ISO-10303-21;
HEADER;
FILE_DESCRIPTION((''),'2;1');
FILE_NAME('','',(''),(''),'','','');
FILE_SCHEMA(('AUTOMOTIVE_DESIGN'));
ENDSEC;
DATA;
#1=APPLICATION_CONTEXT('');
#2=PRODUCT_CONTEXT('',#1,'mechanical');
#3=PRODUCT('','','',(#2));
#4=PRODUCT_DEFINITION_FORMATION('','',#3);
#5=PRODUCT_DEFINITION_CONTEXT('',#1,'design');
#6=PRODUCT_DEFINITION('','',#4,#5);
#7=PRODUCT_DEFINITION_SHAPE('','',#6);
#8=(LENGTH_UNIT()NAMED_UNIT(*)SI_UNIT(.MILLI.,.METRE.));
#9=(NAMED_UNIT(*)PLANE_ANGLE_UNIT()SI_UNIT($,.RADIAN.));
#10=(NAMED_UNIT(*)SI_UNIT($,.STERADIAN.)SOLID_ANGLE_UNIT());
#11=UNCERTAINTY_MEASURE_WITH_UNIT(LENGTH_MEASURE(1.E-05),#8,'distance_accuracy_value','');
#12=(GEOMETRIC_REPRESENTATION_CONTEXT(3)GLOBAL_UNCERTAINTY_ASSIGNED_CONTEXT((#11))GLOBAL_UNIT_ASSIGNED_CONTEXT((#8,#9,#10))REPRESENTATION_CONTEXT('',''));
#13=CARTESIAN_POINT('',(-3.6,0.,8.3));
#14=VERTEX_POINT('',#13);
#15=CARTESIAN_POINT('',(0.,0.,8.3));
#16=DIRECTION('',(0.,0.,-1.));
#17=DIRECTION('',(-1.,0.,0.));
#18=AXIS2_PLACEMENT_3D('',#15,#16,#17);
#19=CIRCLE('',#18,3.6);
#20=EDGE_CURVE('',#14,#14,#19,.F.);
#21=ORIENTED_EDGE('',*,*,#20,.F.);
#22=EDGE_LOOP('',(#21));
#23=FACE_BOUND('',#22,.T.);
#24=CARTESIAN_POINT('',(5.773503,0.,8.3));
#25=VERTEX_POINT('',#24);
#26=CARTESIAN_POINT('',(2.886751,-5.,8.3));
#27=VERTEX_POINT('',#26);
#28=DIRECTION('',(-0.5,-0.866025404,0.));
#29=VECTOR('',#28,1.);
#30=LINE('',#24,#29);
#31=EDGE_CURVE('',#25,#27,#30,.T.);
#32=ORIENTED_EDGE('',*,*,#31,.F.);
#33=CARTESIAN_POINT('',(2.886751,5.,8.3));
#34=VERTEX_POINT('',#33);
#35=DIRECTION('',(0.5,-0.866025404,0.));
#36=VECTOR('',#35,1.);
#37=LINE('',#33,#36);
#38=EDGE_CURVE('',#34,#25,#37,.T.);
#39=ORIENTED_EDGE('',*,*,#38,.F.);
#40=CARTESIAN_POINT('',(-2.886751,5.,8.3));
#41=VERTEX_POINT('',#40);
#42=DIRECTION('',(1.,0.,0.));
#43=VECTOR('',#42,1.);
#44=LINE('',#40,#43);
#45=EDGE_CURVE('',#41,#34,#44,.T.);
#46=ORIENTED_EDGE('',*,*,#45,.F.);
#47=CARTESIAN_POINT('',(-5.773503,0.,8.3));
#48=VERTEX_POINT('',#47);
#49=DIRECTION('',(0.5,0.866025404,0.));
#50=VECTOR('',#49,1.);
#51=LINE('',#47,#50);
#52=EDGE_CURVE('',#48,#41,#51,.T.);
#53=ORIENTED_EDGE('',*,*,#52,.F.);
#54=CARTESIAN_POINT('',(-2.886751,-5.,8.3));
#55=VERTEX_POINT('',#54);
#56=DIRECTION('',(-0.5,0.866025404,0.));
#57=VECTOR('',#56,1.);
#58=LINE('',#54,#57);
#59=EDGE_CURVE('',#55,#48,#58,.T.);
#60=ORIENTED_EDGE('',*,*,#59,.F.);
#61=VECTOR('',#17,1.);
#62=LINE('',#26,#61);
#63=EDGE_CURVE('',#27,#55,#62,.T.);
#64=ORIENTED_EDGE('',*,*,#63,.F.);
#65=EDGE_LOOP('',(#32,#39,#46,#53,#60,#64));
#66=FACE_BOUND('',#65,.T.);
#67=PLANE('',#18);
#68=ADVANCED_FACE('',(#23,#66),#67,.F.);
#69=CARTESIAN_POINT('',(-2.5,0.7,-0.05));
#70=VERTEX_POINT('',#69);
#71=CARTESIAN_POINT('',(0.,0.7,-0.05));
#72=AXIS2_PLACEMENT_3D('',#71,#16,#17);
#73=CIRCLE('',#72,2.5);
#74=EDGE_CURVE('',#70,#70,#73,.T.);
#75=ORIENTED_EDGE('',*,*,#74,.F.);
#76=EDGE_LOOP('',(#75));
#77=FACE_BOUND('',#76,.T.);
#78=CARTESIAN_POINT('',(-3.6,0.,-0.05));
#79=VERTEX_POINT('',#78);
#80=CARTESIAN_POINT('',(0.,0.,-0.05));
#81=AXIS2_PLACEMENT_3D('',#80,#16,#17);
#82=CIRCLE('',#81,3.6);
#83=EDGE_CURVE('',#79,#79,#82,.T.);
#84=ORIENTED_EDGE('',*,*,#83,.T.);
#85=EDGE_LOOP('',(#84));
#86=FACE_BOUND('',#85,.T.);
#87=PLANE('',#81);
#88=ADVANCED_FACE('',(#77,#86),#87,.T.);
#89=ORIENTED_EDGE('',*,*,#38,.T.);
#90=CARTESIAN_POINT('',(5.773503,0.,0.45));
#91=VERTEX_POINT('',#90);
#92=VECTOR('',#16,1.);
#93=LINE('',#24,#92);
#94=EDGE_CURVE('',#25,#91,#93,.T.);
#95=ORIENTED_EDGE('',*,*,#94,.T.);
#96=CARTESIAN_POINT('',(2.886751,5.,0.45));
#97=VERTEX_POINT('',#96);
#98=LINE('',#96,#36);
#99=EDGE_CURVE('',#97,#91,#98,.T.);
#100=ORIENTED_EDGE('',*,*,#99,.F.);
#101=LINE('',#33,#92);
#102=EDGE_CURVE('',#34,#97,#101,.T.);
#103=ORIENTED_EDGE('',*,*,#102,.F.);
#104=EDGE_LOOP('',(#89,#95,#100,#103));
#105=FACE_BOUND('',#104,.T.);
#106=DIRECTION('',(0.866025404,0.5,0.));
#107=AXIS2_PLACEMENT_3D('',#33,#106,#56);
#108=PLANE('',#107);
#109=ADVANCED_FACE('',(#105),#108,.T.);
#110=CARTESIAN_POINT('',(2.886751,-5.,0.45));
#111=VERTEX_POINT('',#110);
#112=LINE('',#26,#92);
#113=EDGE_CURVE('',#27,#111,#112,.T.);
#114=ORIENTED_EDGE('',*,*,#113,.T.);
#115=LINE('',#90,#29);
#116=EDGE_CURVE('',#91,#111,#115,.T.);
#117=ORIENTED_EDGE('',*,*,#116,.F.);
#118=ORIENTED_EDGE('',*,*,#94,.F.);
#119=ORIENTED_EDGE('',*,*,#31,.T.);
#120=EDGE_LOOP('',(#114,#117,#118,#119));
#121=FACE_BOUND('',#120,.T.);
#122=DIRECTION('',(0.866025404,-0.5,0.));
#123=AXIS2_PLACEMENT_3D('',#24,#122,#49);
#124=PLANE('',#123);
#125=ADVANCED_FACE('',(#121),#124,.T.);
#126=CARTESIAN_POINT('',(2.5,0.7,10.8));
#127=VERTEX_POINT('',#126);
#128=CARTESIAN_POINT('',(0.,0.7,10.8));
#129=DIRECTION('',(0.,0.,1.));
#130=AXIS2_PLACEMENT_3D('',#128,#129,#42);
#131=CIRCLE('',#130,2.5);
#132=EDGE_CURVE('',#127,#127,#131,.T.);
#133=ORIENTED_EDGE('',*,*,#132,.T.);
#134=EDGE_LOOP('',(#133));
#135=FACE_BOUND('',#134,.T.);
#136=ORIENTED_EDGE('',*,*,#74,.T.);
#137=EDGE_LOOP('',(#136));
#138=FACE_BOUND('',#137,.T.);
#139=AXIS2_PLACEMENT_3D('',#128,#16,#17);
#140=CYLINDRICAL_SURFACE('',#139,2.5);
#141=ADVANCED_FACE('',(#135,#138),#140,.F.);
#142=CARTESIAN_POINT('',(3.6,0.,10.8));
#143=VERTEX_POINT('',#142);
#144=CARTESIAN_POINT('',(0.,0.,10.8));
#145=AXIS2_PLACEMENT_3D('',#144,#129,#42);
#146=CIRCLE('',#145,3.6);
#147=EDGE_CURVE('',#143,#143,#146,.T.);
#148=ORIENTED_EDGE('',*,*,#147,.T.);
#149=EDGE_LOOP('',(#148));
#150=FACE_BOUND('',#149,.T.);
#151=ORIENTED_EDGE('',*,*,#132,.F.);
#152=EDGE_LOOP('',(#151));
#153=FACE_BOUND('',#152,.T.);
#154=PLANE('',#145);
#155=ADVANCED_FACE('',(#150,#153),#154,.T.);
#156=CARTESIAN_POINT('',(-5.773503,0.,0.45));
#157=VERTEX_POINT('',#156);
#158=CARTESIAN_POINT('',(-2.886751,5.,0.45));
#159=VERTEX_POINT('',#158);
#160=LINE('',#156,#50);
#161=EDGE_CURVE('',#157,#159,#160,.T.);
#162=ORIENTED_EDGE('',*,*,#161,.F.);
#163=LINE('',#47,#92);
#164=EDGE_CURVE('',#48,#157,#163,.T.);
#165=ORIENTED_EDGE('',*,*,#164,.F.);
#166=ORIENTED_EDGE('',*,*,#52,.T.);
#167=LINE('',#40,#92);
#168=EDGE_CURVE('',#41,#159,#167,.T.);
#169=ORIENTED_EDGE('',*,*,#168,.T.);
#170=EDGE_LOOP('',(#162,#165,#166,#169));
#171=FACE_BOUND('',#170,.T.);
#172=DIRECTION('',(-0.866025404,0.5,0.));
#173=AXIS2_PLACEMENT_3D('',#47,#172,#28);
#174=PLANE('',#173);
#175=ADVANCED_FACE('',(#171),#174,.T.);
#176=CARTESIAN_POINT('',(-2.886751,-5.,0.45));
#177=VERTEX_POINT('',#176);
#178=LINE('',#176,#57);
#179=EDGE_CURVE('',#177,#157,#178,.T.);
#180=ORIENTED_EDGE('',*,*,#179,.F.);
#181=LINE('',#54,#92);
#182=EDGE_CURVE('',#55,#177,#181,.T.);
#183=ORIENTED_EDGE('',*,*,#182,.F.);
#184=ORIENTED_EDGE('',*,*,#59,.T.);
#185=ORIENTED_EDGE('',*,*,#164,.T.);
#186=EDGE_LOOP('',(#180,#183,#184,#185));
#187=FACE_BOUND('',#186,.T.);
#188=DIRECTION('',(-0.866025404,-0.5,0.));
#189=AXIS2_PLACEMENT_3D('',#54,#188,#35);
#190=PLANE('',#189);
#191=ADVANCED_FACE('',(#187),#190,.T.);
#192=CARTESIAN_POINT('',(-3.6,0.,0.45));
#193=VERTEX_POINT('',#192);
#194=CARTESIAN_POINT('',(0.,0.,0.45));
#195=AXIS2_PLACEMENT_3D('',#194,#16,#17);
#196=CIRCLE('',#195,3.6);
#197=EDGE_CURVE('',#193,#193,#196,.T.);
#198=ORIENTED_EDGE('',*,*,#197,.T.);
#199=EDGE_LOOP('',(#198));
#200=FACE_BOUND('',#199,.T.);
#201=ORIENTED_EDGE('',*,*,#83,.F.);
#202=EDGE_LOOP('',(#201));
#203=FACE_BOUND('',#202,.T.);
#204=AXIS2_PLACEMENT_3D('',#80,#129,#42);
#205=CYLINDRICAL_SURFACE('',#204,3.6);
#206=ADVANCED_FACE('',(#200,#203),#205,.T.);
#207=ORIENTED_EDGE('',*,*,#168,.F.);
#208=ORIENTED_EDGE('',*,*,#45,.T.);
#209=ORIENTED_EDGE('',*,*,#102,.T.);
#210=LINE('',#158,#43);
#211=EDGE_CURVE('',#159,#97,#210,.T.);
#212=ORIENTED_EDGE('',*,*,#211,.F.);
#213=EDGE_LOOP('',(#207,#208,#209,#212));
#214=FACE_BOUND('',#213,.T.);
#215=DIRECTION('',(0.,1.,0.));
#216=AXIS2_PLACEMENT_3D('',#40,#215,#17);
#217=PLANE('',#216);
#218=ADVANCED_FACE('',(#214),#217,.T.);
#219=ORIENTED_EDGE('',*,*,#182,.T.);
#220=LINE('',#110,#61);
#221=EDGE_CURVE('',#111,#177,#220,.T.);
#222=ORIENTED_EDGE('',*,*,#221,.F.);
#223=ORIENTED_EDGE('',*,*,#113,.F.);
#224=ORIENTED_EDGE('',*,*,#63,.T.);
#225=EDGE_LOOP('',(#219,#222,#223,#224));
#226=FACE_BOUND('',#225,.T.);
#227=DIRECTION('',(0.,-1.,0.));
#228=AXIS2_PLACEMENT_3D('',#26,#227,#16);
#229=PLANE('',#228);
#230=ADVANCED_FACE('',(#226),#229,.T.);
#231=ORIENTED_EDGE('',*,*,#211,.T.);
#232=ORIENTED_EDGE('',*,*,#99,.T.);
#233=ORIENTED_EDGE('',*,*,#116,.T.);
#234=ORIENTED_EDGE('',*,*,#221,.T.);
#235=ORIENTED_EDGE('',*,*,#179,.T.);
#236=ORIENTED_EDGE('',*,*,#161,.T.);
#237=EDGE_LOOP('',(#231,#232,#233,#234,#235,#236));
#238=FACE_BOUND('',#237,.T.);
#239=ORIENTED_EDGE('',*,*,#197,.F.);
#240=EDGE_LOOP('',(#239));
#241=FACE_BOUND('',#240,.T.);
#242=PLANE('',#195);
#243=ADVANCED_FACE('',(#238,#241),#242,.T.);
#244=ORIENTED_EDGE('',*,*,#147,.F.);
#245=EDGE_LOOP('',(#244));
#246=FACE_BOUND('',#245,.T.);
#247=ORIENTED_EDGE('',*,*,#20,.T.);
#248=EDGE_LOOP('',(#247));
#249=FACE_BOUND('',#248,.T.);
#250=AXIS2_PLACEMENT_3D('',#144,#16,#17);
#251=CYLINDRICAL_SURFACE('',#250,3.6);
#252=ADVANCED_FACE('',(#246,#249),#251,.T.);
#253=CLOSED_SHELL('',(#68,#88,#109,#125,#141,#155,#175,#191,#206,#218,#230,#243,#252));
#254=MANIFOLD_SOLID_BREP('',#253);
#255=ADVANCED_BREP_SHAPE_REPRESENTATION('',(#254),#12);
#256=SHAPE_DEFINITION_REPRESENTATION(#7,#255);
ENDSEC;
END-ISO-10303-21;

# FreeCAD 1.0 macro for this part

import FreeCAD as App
import Part
import Sketcher
Q = App.Units.Quantity

doc = App.newDocument("Part")
body = doc.addObject("PartDesign::Body", "Body")

# Sketch on XY plane
sketch1 = body.newObject("Sketcher::SketchObject", "Sketch")
sketch1.AttachmentSupport = (doc.getObject("XY_Plane"), [""])
sketch1.MapMode = "FlatFace"
sketch1.AttachmentOffset = App.Placement(App.Vector(0, 0, 0.45), App.Rotation())
sketch1.addGeometry(Part.LineSegment(App.Vector(-2.886751, -5, 0), App.Vector(-5.773503, 0, 0)), False)
sketch1.addGeometry(Part.LineSegment(App.Vector(-5.773503, 0, 0), App.Vector(-2.886751, 5, 0)), False)
sketch1.addGeometry(Part.LineSegment(App.Vector(-2.886751, 5, 0), App.Vector(2.886751, 5, 0)), False)
sketch1.addGeometry(Part.LineSegment(App.Vector(2.886751, 5, 0), App.Vector(5.773503, 0, 0)), False)
sketch1.addGeometry(Part.LineSegment(App.Vector(5.773503, 0, 0), App.Vector(2.886751, -5, 0)), False)
sketch1.addGeometry(Part.LineSegment(App.Vector(2.886751, -5, 0), App.Vector(-2.886751, -5, 0)), False)
sketch1.addConstraint(Sketcher.Constraint("Coincident", 0, 2, 1, 1))
sketch1.addConstraint(Sketcher.Constraint("Coincident", 1, 2, 2, 1))
sketch1.addConstraint(Sketcher.Constraint("Coincident", 2, 2, 3, 1))
sketch1.addConstraint(Sketcher.Constraint("Coincident", 3, 2, 4, 1))
sketch1.addConstraint(Sketcher.Constraint("Coincident", 4, 2, 5, 1))
sketch1.addConstraint(Sketcher.Constraint("Coincident", 5, 2, 0, 1))
sketch1.addConstraint(Sketcher.Constraint("Horizontal", 2))
sketch1.addConstraint(Sketcher.Constraint("Horizontal", 5))
sketch1.addConstraint(Sketcher.Constraint("Symmetric", 0, 2, 3, 2, -1, 1))
sketch1.addConstraint(Sketcher.Constraint("Symmetric", 1, 2, 4, 2, -1, 1))
sketch1.addConstraint(Sketcher.Constraint("PointOnObject", 0, 2, -1))
sketch1.addConstraint(Sketcher.Constraint("Parallel", 0, 3))
sketch1.addConstraint(Sketcher.Constraint("Vertical", 2, 2, 4, 2))
sketch1.addConstraint(Sketcher.Constraint("Angle", 0, Q("120 deg")))
sketch1.addConstraint(Sketcher.Constraint("DistanceY", -1, 1, 1, 2, 5.0))
sketch1.addConstraint(Sketcher.Constraint("DistanceX", 2, 1, 2, 2, 5.773503))
pad1 = body.newObject("PartDesign::Pad", "Pad")
pad1.Profile = sketch1
pad1.Length = 7.85

# Sketch on XY plane
sketch2 = body.newObject("Sketcher::SketchObject", "Sketch001")
sketch2.AttachmentSupport = (doc.getObject("XY_Plane"), [""])
sketch2.MapMode = "FlatFace"
sketch2.AttachmentOffset = App.Placement(App.Vector(0, 0, 8.3), App.Rotation())
sketch2.addGeometry(Part.Circle(App.Vector(0, 0, 0), App.Vector(0, 0, 1), 3.6), False)
sketch2.addGeometry(Part.Circle(App.Vector(0, 0.7, 0), App.Vector(0, 0, 1), 2.5), False)
sketch2.addConstraint(Sketcher.Constraint("Coincident", 0, 3, -1, 1))
sketch2.addConstraint(Sketcher.Constraint("PointOnObject", 1, 3, -2))
sketch2.addConstraint(Sketcher.Constraint("Diameter", 1, 5.0))
sketch2.addConstraint(Sketcher.Constraint("Diameter", 0, 7.2))
sketch2.addConstraint(Sketcher.Constraint("DistanceY", -1, 1, 1, 3, 0.7))
pad2 = body.newObject("PartDesign::Pad", "Pad001")
pad2.Profile = sketch2
pad2.Length = 2.5

# Sketch on XY plane
sketch3 = body.newObject("Sketcher::SketchObject", "Sketch002")
sketch3.AttachmentSupport = (doc.getObject("XY_Plane"), [""])
sketch3.MapMode = "FlatFace"
sketch3.AttachmentOffset = App.Placement(App.Vector(0, 0, -0.05), App.Rotation())
sketch3.addGeometry(Part.Circle(App.Vector(0, 0, 0), App.Vector(0, 0, 1), 3.6), False)
sketch3.addGeometry(Part.Circle(App.Vector(0, 0.7, 0), App.Vector(0, 0, 1), 2.5), False)
sketch3.addConstraint(Sketcher.Constraint("Coincident", 0, 3, -1, 1))
sketch3.addConstraint(Sketcher.Constraint("PointOnObject", 1, 3, -2))
sketch3.addConstraint(Sketcher.Constraint("Diameter", 1, 5.0))
sketch3.addConstraint(Sketcher.Constraint("Diameter", 0, 7.2))
sketch3.addConstraint(Sketcher.Constraint("DistanceY", -1, 1, 1, 3, 0.7))
pad3 = body.newObject("PartDesign::Pad", "Pad002")
pad3.Profile = sketch3
pad3.Length = 0.5

# Sketch on XY plane
sketch4 = body.newObject("Sketcher::SketchObject", "Sketch003")
sketch4.AttachmentSupport = (doc.getObject("XY_Plane"), [""])
sketch4.MapMode = "FlatFace"
sketch4.AttachmentOffset = App.Placement(App.Vector(0, 0, -0.2), App.Rotation())
sketch4.addGeometry(Part.Circle(App.Vector(0, 0.7, 0), App.Vector(0, 0, 1), 2.5), False)
sketch4.addConstraint(Sketcher.Constraint("PointOnObject", 0, 3, -2))
sketch4.addConstraint(Sketcher.Constraint("Diameter", 0, 5.0))
sketch4.addConstraint(Sketcher.Constraint("DistanceY", -1, 1, 0, 3, 0.7))
pocket1 = body.newObject("PartDesign::Pocket", "Pocket")
pocket1.Profile = sketch4
pocket1.Length = 8.5
pocket1.Reversed = True

doc.recompute()
